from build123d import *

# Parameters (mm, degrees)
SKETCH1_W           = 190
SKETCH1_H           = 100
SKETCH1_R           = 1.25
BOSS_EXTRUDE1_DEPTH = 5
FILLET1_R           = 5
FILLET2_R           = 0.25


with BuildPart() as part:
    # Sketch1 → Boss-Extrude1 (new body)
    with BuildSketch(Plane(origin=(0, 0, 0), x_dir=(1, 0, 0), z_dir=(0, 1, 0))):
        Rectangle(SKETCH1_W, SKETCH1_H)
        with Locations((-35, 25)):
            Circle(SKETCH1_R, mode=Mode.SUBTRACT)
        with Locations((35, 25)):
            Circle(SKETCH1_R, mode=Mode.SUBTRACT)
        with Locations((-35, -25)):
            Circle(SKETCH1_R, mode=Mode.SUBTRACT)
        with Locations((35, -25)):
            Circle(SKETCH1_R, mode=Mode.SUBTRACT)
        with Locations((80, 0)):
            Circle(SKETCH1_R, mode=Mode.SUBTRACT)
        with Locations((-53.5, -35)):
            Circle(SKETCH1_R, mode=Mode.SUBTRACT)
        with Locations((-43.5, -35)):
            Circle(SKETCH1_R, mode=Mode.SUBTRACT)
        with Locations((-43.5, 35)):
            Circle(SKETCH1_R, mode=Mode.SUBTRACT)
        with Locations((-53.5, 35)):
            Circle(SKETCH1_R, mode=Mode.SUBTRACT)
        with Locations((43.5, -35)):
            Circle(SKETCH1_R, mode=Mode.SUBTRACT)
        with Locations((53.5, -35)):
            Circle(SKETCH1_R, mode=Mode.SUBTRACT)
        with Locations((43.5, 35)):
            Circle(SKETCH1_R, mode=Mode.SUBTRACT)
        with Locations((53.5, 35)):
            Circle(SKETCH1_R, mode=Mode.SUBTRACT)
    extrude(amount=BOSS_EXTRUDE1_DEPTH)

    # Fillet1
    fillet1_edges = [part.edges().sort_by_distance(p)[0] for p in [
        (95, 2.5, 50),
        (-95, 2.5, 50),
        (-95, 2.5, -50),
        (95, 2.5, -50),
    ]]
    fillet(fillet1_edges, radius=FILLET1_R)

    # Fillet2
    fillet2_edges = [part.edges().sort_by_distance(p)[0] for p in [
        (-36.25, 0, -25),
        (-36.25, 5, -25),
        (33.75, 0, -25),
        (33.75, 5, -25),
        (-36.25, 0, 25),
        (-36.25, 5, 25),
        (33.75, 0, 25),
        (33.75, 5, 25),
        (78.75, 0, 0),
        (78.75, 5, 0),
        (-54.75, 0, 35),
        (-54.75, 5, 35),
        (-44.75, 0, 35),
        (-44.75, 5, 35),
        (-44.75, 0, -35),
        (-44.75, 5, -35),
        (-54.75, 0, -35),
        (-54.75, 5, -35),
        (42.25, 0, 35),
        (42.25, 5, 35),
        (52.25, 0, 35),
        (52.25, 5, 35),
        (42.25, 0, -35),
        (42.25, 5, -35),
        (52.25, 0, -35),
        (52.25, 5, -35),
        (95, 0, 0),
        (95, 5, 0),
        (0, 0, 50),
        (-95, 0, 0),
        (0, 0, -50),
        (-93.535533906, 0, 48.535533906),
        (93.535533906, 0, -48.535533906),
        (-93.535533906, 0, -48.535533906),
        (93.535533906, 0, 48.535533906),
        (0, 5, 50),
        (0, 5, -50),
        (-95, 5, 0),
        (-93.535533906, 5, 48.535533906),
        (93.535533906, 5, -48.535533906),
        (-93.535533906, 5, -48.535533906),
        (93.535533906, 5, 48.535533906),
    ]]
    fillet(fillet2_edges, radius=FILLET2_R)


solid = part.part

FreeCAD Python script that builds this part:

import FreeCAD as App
import Part
import Sketcher

V = App.Vector
Q = App.Units.Quantity


def edges_at(feature, points):
    """Names of the edges that pass closest to the given points."""
    edges = feature.Shape.Edges
    near = lambda p: min(range(len(edges)), key=lambda i: edges[i].distToShape(Part.Vertex(*p))[0])
    return sorted({f"Edge{near(p) + 1}" for p in points})

doc = App.newDocument("Part")
params = doc.addObject("Spreadsheet::Sheet", "Params")
for row, (alias, value) in enumerate([
    ("sketch1_diameter", "2.5 mm"),
    ("sketch1_width", "190 mm"),
    ("sketch1_height", "100 mm"),
    ("pad1_length", "5 mm"),
    ("fillet_radius", "5 mm"),
    ("fillet2_radius", "0.25 mm"),
], start=1):
    params.set(f"A{row}", alias)
    params.set(f"B{row}", "=" + value)
    params.setAlias(f"B{row}", alias)

body = doc.addObject("PartDesign::Body", "Body")

# Sketch on XZ plane
sketch1 = body.newObject("Sketcher::SketchObject", "Sketch")
sketch1.AttachmentSupport = (doc.getObject("XZ_Plane"), [""])
sketch1.MapMode = "FlatFace"
sketch1.addGeometry(Part.LineSegment(V(-95, -50, 0), V(-95, 50, 0)), False)
sketch1.addGeometry(Part.LineSegment(V(-95, 50, 0), V(95, 50, 0)), False)
sketch1.addGeometry(Part.LineSegment(V(95, 50, 0), V(95, -50, 0)), False)
sketch1.addGeometry(Part.LineSegment(V(95, -50, 0), V(-95, -50, 0)), False)
sketch1.addGeometry(Part.Circle(V(-53.5, 35, 0), V(0, 0, 1), 1.2), False)
sketch1.addGeometry(Part.Circle(V(-43.5, 35, 0), V(0, 0, 1), 1.2), False)
sketch1.addGeometry(Part.Circle(V(-35, 25, 0), V(0, 0, 1), 1.2), False)
sketch1.addGeometry(Part.Circle(V(43.5, 35, 0), V(0, 0, 1), 1.2), False)
sketch1.addGeometry(Part.Circle(V(35, 25, 0), V(0, 0, 1), 1.2), False)
sketch1.addGeometry(Part.Circle(V(53.5, 35, 0), V(0, 0, 1), 1.2), False)
sketch1.addGeometry(Part.Circle(V(-35, -25, 0), V(0, 0, 1), 1.2), False)
sketch1.addGeometry(Part.Circle(V(-53.5, -35, 0), V(0, 0, 1), 1.2), False)
sketch1.addGeometry(Part.Circle(V(-43.5, -35, 0), V(0, 0, 1), 1.2), False)
sketch1.addGeometry(Part.Circle(V(80, 0, 0), V(0, 0, 1), 1.2), False)
sketch1.addGeometry(Part.Circle(V(35, -25, 0), V(0, 0, 1), 1.2), False)
sketch1.addGeometry(Part.Circle(V(43.5, -35, 0), V(0, 0, 1), 1.2), False)
sketch1.addGeometry(Part.Circle(V(53.5, -35, 0), V(0, 0, 1), 1.2), False)
sketch1.addConstraint(Sketcher.Constraint("Coincident", 0, 2, 1, 1))
sketch1.addConstraint(Sketcher.Constraint("Coincident", 1, 2, 2, 1))
sketch1.addConstraint(Sketcher.Constraint("Coincident", 2, 2, 3, 1))
sketch1.addConstraint(Sketcher.Constraint("Coincident", 3, 2, 0, 1))
sketch1.addConstraint(Sketcher.Constraint("Vertical", 0))
sketch1.addConstraint(Sketcher.Constraint("Horizontal", 1))
sketch1.addConstraint(Sketcher.Constraint("Vertical", 2))
sketch1.addConstraint(Sketcher.Constraint("Horizontal", 3))
sketch1.addConstraint(Sketcher.Constraint("Equal", 4, 5))
sketch1.addConstraint(Sketcher.Constraint("Equal", 5, 6))
sketch1.addConstraint(Sketcher.Constraint("Equal", 6, 7))
sketch1.addConstraint(Sketcher.Constraint("Equal", 7, 8))
sketch1.addConstraint(Sketcher.Constraint("Equal", 8, 9))
sketch1.addConstraint(Sketcher.Constraint("Equal", 9, 10))
sketch1.addConstraint(Sketcher.Constraint("Equal", 10, 11))
sketch1.addConstraint(Sketcher.Constraint("Equal", 11, 12))
sketch1.addConstraint(Sketcher.Constraint("Equal", 12, 13))
sketch1.addConstraint(Sketcher.Constraint("Equal", 13, 14))
sketch1.addConstraint(Sketcher.Constraint("Equal", 14, 15))
sketch1.addConstraint(Sketcher.Constraint("Equal", 15, 16))
sketch1.addConstraint(Sketcher.Constraint("Symmetric", 8, 3, 10, 3, -1, 1))
sketch1.addConstraint(Sketcher.Constraint("Symmetric", 9, 3, 11, 3, -1, 1))
sketch1.addConstraint(Sketcher.Constraint("Symmetric", 7, 3, 12, 3, -1, 1))
sketch1.addConstraint(Sketcher.Constraint("Symmetric", 6, 3, 14, 3, -1, 1))
sketch1.addConstraint(Sketcher.Constraint("Symmetric", 5, 3, 15, 3, -1, 1))
sketch1.addConstraint(Sketcher.Constraint("Symmetric", 4, 3, 16, 3, -1, 1))
sketch1.addConstraint(Sketcher.Constraint("Symmetric", 0, 2, 2, 2, -1, 1))
sketch1.addConstraint(Sketcher.Constraint("Symmetric", 5, 3, 7, 3, -2))
sketch1.addConstraint(Sketcher.Constraint("Symmetric", 6, 3, 8, 3, -2))
sketch1.addConstraint(Sketcher.Constraint("Symmetric", 4, 3, 9, 3, -2))
sketch1.addConstraint(Sketcher.Constraint("PointOnObject", 13, 3, -1))
sketch1.addConstraint(Sketcher.Constraint("Horizontal", 4, 3, 5, 3))
sketch1.addConstraint(Sketcher.Constraint("Diameter", 4, Q("2.5 mm")))
sketch1.addConstraint(Sketcher.Constraint("DistanceX", 1, 1, 1, 2, Q("190 mm")))
sketch1.addConstraint(Sketcher.Constraint("DistanceY", 0, 1, 0, 2, Q("100 mm")))
sketch1.addConstraint(Sketcher.Constraint("DistanceY", -1, 1, 4, 3, Q("35 mm")))
sketch1.addConstraint(Sketcher.Constraint("DistanceX", 6, 3, -1, 1, Q("35 mm")))
sketch1.addConstraint(Sketcher.Constraint("DistanceY", -1, 1, 6, 3, Q("25 mm")))
sketch1.addConstraint(Sketcher.Constraint("DistanceX", -1, 1, 13, 3, Q("80 mm")))
sketch1.addConstraint(Sketcher.Constraint("DistanceX", 4, 3, 5, 3, Q("10 mm")))
sketch1.addConstraint(Sketcher.Constraint("DistanceX", 5, 3, 7, 3, Q("87 mm")))
sketch1.setExpression("Constraints[32]", "Params.sketch1_diameter")
sketch1.setExpression("Constraints[33]", "Params.sketch1_width")
sketch1.setExpression("Constraints[34]", "Params.sketch1_height")
pad1 = body.newObject("PartDesign::Pad", "Pad")
pad1.Profile = sketch1
pad1.setExpression("Length", "Params.pad1_length")
pad1.Reversed = True
doc.recompute()

fillet = body.newObject("PartDesign::Fillet", "Fillet")
fillet.Base = (pad1, edges_at(pad1, [
    (95, 2.5, 50),
    (-95, 2.5, 50),
    (-95, 2.5, -50),
    (95, 2.5, -50),
]))
fillet.setExpression("Radius", "Params.fillet_radius")
doc.recompute()

fillet2 = body.newObject("PartDesign::Fillet", "Fillet001")
fillet2.Base = (fillet, edges_at(fillet, [
    (-36.25, 0, -25),
    (-36.25, 5, -25),
    (33.75, 0, -25),
    (33.75, 5, -25),
    (-36.25, 0, 25),
    (-36.25, 5, 25),
    (33.75, 0, 25),
    (33.75, 5, 25),
    (78.75, 0, 0),
    (78.75, 5, 0),
    (-54.75, 0, 35),
    (-54.75, 5, 35),
    (-44.75, 0, 35),
    (-44.75, 5, 35),
    (-44.75, 0, -35),
    (-44.75, 5, -35),
    (-54.75, 0, -35),
    (-54.75, 5, -35),
    (42.25, 0, 35),
    (42.25, 5, 35),
    (52.25, 0, 35),
    (52.25, 5, 35),
    (42.25, 0, -35),
    (42.25, 5, -35),
    (52.25, 0, -35),
    (52.25, 5, -35),
    (95, 0, 0),
    (95, 5, 0),
    (0, 0, 50),
    (-95, 0, 0),
    (0, 0, -50),
    (-93.536, 0, 48.536),
    (93.536, 0, -48.536),
    (-93.536, 0, -48.536),
    (93.536, 0, 48.536),
    (0, 5, 50),
    (0, 5, -50),
    (-95, 5, 0),
    (-93.536, 5, 48.536),
    (93.536, 5, -48.536),
    (-93.536, 5, -48.536),
    (93.536, 5, 48.536),
]))
fillet2.setExpression("Radius", "Params.fillet2_radius")

doc.recompute()
